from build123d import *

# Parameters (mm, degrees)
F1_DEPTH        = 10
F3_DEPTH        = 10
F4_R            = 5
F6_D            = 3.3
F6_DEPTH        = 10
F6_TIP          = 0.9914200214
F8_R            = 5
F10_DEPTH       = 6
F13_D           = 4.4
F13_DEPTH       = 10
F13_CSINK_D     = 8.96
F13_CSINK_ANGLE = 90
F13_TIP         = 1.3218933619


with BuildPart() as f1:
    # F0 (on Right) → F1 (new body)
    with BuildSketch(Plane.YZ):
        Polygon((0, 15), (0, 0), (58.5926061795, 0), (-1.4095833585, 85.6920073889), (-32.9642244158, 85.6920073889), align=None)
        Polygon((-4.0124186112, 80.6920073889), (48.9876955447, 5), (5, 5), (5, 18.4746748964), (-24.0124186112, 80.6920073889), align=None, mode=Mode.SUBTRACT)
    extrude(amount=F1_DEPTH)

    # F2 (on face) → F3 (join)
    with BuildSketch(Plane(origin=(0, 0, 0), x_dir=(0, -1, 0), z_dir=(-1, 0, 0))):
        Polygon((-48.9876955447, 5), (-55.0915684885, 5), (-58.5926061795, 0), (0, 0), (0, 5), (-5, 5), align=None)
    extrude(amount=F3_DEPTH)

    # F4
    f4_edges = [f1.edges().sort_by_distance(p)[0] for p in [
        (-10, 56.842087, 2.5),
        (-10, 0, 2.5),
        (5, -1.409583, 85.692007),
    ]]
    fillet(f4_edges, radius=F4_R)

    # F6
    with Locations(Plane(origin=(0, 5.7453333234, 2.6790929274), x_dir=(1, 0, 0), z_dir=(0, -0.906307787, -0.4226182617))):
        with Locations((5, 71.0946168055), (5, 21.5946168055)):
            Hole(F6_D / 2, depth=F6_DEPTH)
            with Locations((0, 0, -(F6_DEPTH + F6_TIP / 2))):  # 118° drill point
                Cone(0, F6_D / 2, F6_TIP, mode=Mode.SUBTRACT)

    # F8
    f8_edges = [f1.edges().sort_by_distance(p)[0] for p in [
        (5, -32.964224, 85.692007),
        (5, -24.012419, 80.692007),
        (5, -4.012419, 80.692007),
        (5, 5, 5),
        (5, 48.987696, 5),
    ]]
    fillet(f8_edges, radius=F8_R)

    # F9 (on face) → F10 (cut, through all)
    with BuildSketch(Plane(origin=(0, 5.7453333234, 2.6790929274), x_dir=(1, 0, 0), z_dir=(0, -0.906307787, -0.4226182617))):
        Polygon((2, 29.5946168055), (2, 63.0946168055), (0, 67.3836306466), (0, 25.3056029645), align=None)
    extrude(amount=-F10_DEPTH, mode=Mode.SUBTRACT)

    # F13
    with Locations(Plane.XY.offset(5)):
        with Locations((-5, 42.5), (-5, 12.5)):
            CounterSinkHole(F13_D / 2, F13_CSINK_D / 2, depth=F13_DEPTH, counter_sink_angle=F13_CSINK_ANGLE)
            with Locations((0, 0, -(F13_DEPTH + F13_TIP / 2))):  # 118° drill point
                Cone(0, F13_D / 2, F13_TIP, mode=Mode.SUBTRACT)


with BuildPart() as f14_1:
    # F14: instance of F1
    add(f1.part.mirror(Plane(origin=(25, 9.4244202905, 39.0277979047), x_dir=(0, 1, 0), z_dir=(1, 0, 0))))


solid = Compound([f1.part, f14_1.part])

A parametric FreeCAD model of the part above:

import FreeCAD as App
import Part
import Sketcher
from FreeCAD import Vector
Q = App.Units.Quantity


def edges_at(feature, points):
    """Names of the edges that pass closest to the given points."""
    edges = feature.Shape.Edges
    near = lambda p: min(range(len(edges)), key=lambda i: edges[i].distToShape(Part.Vertex(*p))[0])
    return sorted({f"Edge{near(p) + 1}" for p in points})

doc = App.newDocument("Part")
body = doc.addObject("PartDesign::Body", "Body")

sketch1 = body.newObject("Sketcher::SketchObject", "Sketch")
sketch1.AttachmentSupport = (doc.getObject("YZ_Plane"), [""])
sketch1.MapMode = "FlatFace"
sketch1.addGeometry([
    Part.LineSegment(Vector(0, 15, 0), Vector(0, 0, 0)),
    Part.LineSegment(Vector(0, 0, 0), Vector(59, 0, 0)),
    Part.LineSegment(Vector(59, 0, 0), Vector(-1, 86, 0)),
    Part.LineSegment(Vector(-1, 86, 0), Vector(-33, 86, 0)),
    Part.LineSegment(Vector(-33, 86, 0), Vector(0, 15, 0)),
    Part.LineSegment(Vector(-24, 81, 0), Vector(-4, 81, 0)),
    Part.LineSegment(Vector(-4, 81, 0), Vector(49, 5, 0)),
    Part.LineSegment(Vector(49, 5, 0), Vector(5, 5, 0)),
    Part.LineSegment(Vector(5, 5, 0), Vector(5, 18, 0)),
    Part.LineSegment(Vector(5, 18, 0), Vector(-24, 81, 0)),
], False)
sketch1.addConstraint([
    Sketcher.Constraint("Coincident", 0, 2, 1, 1),
    Sketcher.Constraint("Coincident", 1, 2, 2, 1),
    Sketcher.Constraint("Coincident", 2, 2, 3, 1),
    Sketcher.Constraint("Coincident", 3, 2, 4, 1),
    Sketcher.Constraint("Coincident", 4, 2, 0, 1),
    Sketcher.Constraint("Coincident", 5, 2, 6, 1),
    Sketcher.Constraint("Coincident", 6, 2, 7, 1),
    Sketcher.Constraint("Coincident", 7, 2, 8, 1),
    Sketcher.Constraint("Coincident", 8, 2, 9, 1),
    Sketcher.Constraint("Coincident", 9, 2, 5, 1),
    Sketcher.Constraint("Vertical", 0),
    Sketcher.Constraint("Horizontal", 1),
    Sketcher.Constraint("Horizontal", 3),
    Sketcher.Constraint("Horizontal", 5),
    Sketcher.Constraint("Horizontal", 7),
    Sketcher.Constraint("Vertical", 8),
    Sketcher.Constraint("Coincident", 0, 2, -1, 1),
    Sketcher.Constraint("Parallel", 2, 6),
    Sketcher.Constraint("Parallel", 4, 9),
    Sketcher.Constraint("DistanceX", 5, 1, 5, 2, 20.0),
    Sketcher.Constraint("DistanceY", 0, 2, 0, 1, 15.0),
    Sketcher.Constraint("Angle", 2, Q("125 deg")),
    Sketcher.Constraint("Angle", 4, Q("-65 deg")),
    Sketcher.Constraint("Distance", 4, 78.0),
    Sketcher.Constraint("DistanceY", -1, 1, 6, 2, 5.0),
    Sketcher.Constraint("DistanceX", -1, 1, 7, 2, 5.0),
    Sketcher.Constraint("DistanceY", 5, 2, 2, 2, 5.0),
    Sketcher.Constraint("DistanceX", 3, 2, 3, 1, 31.554641),
    Sketcher.Constraint("Distance", 9, 68.649231),
])
pad1 = body.newObject("PartDesign::Pad", "Pad")
pad1.Profile = sketch1
pad1.Length = 10

sketch2 = body.newObject("Sketcher::SketchObject", "Sketch001")
sketch2.AttachmentSupport = (doc.getObject("YZ_Plane"), [""])
sketch2.MapMode = "FlatFace"
sketch2.addGeometry([
    Part.LineSegment(Vector(55, 5, 0), Vector(59, 0, 0)),
    Part.LineSegment(Vector(59, 0, 0), Vector(0, 0, 0)),
    Part.LineSegment(Vector(0, 0, 0), Vector(0, 5, 0)),
    Part.LineSegment(Vector(0, 5, 0), Vector(55, 5, 0)),
], False)
sketch2.addConstraint([
    Sketcher.Constraint("Coincident", 0, 2, 1, 1),
    Sketcher.Constraint("Coincident", 1, 2, 2, 1),
    Sketcher.Constraint("Coincident", 2, 2, 3, 1),
    Sketcher.Constraint("Coincident", 3, 2, 0, 1),
    Sketcher.Constraint("Horizontal", 1),
    Sketcher.Constraint("Vertical", 2),
    Sketcher.Constraint("Horizontal", 3),
    Sketcher.Constraint("Coincident", 1, 2, -1, 1),
    Sketcher.Constraint("DistanceY", 2, 1, 2, 2, 5.0),
    Sketcher.Constraint("Angle", 0, Q("-55 deg")),
    Sketcher.Constraint("DistanceX", 3, 1, 3, 2, 55.091568),
])
pad2 = body.newObject("PartDesign::Pad", "Pad001")
pad2.Profile = sketch2
pad2.Length = 10
pad2.Reversed = True
doc.recompute()

fillet = body.newObject("PartDesign::Fillet", "Fillet")
fillet.Base = (pad2, edges_at(pad2, [(-10, 56.842, 2.5), (-10, 0, 2.5), (5, -1.41, 85.692)]))
fillet.Radius = 5

sketch3 = body.newObject("Sketcher::SketchObject", "Sketch002")
sketch3.Placement = App.Placement(Vector(0, 5.745333, 2.679093), App.Rotation(Vector(1, 0, 0), Vector(0, -0.422618262, 0.906307787), Vector(0, -0.906307787, -0.422618262), "ZXY"))
sketch3.addGeometry([
    Part.Circle(Vector(5, 71.1, 0), Vector(0, 0, 1), 1.6),
    Part.Circle(Vector(5, 21.6, 0), Vector(0, 0, 1), 1.6),
], False)
sketch3.addConstraint([
    Sketcher.Constraint("Equal", 0, 1),
    Sketcher.Constraint("Vertical", 0, 3, 1, 3),
    Sketcher.Constraint("Diameter", 0, 3.3),
    Sketcher.Constraint("DistanceX", -1, 1, 0, 3, 5.0),
    Sketcher.Constraint("DistanceY", 1, 3, 0, 3, 49.5),
    Sketcher.Constraint("DistanceY", -1, 1, 0, 3, 71.094617),
])
doc.recompute()
hole = body.newObject("PartDesign::Hole", "Hole")
hole.Profile = sketch3
hole.ThreadType = "None"
hole.Diameter = 3.3
hole.DepthType = "Dimension"
hole.Depth = 10
hole.DrillPoint = "Angled"
hole.DrillPointAngle = 118
doc.recompute()

fillet2 = body.newObject("PartDesign::Fillet", "Fillet001")
fillet2.Base = (hole, edges_at(hole, [
    (5, -32.964, 85.692),
    (5, -24.012, 80.692),
    (5, -4.012, 80.692),
    (5, 5, 5),
    (5, 48.988, 5),
]))
fillet2.Radius = 5

sketch4 = body.newObject("Sketcher::SketchObject", "Sketch003")
sketch4.Placement = App.Placement(Vector(0, 5.745333, 2.679093), App.Rotation(Vector(1, 0, 0), Vector(0, -0.422618262, 0.906307787), Vector(0, -0.906307787, -0.422618262), "ZXY"))
sketch4.addGeometry([
    Part.LineSegment(Vector(2, 29.6, 0), Vector(2, 63.1, 0)),
    Part.LineSegment(Vector(2, 63.1, 0), Vector(0, 67.4, 0)),
    Part.LineSegment(Vector(0, 67.4, 0), Vector(0, 25.3, 0)),
    Part.LineSegment(Vector(0, 25.3, 0), Vector(2, 29.6, 0)),
], False)
sketch4.addConstraint([
    Sketcher.Constraint("Coincident", 0, 2, 1, 1),
    Sketcher.Constraint("Coincident", 1, 2, 2, 1),
    Sketcher.Constraint("Coincident", 2, 2, 3, 1),
    Sketcher.Constraint("Coincident", 3, 2, 0, 1),
    Sketcher.Constraint("Vertical", 0),
    Sketcher.Constraint("Vertical", 2),
    Sketcher.Constraint("PointOnObject", 1, 2, -2),
    Sketcher.Constraint("Equal", 1, 3),
    Sketcher.Constraint("Angle", 1, Q("115 deg")),
    Sketcher.Constraint("DistanceY", 0, 1, 0, 2, 33.5),
    Sketcher.Constraint("DistanceX", -1, 1, 0, 2, 2.0),
    Sketcher.Constraint("DistanceY", -1, 1, 1, 2, 67.383631),
])
pocket1 = body.newObject("PartDesign::Pocket", "Pocket")
pocket1.Profile = sketch4
pocket1.Length = 6

sketch5 = body.newObject("Sketcher::SketchObject", "Sketch004")
sketch5.AttachmentSupport = (doc.getObject("XY_Plane"), [""])
sketch5.MapMode = "FlatFace"
sketch5.AttachmentOffset = App.Placement(Vector(0, 0, 5), App.Rotation())
sketch5.addGeometry([
    Part.Circle(Vector(-5, 42.5, 0), Vector(0, 0, 1), 2.2),
    Part.Circle(Vector(-5, 12.5, 0), Vector(0, 0, 1), 2.2),
], False)
sketch5.addConstraint([
    Sketcher.Constraint("Equal", 0, 1),
    Sketcher.Constraint("Vertical", 0, 3, 1, 3),
    Sketcher.Constraint("Diameter", 0, 4.4),
    Sketcher.Constraint("DistanceX", 0, 3, -1, 1, 5.0),
    Sketcher.Constraint("DistanceY", 1, 3, 0, 3, 30.0),
    Sketcher.Constraint("DistanceY", -1, 1, 0, 3, 42.5),
])
doc.recompute()
hole2 = body.newObject("PartDesign::Hole", "Hole001")
hole2.Profile = sketch5
hole2.ThreadType = "None"
hole2.Diameter = 4.4
hole2.DepthType = "Dimension"
hole2.Depth = 10
hole2.DrillPoint = "Angled"
hole2.DrillPointAngle = 118
hole2.HoleCutType = "Countersink"
hole2.HoleCutDiameter = 8.96
hole2.HoleCutCountersinkAngle = 90
body2 = doc.addObject("PartDesign::Body", "Body001")
doc.recompute()

mirroring = doc.addObject("Part::Mirroring", "Mirroring")
mirroring.Source = body
mirroring.Base = Vector(25, 9.42442, 39.027798)
mirroring.Normal = Vector(1, 0, 0)
body2.BaseFeature = mirroring
doc.recompute()
mirroring.Visibility = False

doc.recompute()
